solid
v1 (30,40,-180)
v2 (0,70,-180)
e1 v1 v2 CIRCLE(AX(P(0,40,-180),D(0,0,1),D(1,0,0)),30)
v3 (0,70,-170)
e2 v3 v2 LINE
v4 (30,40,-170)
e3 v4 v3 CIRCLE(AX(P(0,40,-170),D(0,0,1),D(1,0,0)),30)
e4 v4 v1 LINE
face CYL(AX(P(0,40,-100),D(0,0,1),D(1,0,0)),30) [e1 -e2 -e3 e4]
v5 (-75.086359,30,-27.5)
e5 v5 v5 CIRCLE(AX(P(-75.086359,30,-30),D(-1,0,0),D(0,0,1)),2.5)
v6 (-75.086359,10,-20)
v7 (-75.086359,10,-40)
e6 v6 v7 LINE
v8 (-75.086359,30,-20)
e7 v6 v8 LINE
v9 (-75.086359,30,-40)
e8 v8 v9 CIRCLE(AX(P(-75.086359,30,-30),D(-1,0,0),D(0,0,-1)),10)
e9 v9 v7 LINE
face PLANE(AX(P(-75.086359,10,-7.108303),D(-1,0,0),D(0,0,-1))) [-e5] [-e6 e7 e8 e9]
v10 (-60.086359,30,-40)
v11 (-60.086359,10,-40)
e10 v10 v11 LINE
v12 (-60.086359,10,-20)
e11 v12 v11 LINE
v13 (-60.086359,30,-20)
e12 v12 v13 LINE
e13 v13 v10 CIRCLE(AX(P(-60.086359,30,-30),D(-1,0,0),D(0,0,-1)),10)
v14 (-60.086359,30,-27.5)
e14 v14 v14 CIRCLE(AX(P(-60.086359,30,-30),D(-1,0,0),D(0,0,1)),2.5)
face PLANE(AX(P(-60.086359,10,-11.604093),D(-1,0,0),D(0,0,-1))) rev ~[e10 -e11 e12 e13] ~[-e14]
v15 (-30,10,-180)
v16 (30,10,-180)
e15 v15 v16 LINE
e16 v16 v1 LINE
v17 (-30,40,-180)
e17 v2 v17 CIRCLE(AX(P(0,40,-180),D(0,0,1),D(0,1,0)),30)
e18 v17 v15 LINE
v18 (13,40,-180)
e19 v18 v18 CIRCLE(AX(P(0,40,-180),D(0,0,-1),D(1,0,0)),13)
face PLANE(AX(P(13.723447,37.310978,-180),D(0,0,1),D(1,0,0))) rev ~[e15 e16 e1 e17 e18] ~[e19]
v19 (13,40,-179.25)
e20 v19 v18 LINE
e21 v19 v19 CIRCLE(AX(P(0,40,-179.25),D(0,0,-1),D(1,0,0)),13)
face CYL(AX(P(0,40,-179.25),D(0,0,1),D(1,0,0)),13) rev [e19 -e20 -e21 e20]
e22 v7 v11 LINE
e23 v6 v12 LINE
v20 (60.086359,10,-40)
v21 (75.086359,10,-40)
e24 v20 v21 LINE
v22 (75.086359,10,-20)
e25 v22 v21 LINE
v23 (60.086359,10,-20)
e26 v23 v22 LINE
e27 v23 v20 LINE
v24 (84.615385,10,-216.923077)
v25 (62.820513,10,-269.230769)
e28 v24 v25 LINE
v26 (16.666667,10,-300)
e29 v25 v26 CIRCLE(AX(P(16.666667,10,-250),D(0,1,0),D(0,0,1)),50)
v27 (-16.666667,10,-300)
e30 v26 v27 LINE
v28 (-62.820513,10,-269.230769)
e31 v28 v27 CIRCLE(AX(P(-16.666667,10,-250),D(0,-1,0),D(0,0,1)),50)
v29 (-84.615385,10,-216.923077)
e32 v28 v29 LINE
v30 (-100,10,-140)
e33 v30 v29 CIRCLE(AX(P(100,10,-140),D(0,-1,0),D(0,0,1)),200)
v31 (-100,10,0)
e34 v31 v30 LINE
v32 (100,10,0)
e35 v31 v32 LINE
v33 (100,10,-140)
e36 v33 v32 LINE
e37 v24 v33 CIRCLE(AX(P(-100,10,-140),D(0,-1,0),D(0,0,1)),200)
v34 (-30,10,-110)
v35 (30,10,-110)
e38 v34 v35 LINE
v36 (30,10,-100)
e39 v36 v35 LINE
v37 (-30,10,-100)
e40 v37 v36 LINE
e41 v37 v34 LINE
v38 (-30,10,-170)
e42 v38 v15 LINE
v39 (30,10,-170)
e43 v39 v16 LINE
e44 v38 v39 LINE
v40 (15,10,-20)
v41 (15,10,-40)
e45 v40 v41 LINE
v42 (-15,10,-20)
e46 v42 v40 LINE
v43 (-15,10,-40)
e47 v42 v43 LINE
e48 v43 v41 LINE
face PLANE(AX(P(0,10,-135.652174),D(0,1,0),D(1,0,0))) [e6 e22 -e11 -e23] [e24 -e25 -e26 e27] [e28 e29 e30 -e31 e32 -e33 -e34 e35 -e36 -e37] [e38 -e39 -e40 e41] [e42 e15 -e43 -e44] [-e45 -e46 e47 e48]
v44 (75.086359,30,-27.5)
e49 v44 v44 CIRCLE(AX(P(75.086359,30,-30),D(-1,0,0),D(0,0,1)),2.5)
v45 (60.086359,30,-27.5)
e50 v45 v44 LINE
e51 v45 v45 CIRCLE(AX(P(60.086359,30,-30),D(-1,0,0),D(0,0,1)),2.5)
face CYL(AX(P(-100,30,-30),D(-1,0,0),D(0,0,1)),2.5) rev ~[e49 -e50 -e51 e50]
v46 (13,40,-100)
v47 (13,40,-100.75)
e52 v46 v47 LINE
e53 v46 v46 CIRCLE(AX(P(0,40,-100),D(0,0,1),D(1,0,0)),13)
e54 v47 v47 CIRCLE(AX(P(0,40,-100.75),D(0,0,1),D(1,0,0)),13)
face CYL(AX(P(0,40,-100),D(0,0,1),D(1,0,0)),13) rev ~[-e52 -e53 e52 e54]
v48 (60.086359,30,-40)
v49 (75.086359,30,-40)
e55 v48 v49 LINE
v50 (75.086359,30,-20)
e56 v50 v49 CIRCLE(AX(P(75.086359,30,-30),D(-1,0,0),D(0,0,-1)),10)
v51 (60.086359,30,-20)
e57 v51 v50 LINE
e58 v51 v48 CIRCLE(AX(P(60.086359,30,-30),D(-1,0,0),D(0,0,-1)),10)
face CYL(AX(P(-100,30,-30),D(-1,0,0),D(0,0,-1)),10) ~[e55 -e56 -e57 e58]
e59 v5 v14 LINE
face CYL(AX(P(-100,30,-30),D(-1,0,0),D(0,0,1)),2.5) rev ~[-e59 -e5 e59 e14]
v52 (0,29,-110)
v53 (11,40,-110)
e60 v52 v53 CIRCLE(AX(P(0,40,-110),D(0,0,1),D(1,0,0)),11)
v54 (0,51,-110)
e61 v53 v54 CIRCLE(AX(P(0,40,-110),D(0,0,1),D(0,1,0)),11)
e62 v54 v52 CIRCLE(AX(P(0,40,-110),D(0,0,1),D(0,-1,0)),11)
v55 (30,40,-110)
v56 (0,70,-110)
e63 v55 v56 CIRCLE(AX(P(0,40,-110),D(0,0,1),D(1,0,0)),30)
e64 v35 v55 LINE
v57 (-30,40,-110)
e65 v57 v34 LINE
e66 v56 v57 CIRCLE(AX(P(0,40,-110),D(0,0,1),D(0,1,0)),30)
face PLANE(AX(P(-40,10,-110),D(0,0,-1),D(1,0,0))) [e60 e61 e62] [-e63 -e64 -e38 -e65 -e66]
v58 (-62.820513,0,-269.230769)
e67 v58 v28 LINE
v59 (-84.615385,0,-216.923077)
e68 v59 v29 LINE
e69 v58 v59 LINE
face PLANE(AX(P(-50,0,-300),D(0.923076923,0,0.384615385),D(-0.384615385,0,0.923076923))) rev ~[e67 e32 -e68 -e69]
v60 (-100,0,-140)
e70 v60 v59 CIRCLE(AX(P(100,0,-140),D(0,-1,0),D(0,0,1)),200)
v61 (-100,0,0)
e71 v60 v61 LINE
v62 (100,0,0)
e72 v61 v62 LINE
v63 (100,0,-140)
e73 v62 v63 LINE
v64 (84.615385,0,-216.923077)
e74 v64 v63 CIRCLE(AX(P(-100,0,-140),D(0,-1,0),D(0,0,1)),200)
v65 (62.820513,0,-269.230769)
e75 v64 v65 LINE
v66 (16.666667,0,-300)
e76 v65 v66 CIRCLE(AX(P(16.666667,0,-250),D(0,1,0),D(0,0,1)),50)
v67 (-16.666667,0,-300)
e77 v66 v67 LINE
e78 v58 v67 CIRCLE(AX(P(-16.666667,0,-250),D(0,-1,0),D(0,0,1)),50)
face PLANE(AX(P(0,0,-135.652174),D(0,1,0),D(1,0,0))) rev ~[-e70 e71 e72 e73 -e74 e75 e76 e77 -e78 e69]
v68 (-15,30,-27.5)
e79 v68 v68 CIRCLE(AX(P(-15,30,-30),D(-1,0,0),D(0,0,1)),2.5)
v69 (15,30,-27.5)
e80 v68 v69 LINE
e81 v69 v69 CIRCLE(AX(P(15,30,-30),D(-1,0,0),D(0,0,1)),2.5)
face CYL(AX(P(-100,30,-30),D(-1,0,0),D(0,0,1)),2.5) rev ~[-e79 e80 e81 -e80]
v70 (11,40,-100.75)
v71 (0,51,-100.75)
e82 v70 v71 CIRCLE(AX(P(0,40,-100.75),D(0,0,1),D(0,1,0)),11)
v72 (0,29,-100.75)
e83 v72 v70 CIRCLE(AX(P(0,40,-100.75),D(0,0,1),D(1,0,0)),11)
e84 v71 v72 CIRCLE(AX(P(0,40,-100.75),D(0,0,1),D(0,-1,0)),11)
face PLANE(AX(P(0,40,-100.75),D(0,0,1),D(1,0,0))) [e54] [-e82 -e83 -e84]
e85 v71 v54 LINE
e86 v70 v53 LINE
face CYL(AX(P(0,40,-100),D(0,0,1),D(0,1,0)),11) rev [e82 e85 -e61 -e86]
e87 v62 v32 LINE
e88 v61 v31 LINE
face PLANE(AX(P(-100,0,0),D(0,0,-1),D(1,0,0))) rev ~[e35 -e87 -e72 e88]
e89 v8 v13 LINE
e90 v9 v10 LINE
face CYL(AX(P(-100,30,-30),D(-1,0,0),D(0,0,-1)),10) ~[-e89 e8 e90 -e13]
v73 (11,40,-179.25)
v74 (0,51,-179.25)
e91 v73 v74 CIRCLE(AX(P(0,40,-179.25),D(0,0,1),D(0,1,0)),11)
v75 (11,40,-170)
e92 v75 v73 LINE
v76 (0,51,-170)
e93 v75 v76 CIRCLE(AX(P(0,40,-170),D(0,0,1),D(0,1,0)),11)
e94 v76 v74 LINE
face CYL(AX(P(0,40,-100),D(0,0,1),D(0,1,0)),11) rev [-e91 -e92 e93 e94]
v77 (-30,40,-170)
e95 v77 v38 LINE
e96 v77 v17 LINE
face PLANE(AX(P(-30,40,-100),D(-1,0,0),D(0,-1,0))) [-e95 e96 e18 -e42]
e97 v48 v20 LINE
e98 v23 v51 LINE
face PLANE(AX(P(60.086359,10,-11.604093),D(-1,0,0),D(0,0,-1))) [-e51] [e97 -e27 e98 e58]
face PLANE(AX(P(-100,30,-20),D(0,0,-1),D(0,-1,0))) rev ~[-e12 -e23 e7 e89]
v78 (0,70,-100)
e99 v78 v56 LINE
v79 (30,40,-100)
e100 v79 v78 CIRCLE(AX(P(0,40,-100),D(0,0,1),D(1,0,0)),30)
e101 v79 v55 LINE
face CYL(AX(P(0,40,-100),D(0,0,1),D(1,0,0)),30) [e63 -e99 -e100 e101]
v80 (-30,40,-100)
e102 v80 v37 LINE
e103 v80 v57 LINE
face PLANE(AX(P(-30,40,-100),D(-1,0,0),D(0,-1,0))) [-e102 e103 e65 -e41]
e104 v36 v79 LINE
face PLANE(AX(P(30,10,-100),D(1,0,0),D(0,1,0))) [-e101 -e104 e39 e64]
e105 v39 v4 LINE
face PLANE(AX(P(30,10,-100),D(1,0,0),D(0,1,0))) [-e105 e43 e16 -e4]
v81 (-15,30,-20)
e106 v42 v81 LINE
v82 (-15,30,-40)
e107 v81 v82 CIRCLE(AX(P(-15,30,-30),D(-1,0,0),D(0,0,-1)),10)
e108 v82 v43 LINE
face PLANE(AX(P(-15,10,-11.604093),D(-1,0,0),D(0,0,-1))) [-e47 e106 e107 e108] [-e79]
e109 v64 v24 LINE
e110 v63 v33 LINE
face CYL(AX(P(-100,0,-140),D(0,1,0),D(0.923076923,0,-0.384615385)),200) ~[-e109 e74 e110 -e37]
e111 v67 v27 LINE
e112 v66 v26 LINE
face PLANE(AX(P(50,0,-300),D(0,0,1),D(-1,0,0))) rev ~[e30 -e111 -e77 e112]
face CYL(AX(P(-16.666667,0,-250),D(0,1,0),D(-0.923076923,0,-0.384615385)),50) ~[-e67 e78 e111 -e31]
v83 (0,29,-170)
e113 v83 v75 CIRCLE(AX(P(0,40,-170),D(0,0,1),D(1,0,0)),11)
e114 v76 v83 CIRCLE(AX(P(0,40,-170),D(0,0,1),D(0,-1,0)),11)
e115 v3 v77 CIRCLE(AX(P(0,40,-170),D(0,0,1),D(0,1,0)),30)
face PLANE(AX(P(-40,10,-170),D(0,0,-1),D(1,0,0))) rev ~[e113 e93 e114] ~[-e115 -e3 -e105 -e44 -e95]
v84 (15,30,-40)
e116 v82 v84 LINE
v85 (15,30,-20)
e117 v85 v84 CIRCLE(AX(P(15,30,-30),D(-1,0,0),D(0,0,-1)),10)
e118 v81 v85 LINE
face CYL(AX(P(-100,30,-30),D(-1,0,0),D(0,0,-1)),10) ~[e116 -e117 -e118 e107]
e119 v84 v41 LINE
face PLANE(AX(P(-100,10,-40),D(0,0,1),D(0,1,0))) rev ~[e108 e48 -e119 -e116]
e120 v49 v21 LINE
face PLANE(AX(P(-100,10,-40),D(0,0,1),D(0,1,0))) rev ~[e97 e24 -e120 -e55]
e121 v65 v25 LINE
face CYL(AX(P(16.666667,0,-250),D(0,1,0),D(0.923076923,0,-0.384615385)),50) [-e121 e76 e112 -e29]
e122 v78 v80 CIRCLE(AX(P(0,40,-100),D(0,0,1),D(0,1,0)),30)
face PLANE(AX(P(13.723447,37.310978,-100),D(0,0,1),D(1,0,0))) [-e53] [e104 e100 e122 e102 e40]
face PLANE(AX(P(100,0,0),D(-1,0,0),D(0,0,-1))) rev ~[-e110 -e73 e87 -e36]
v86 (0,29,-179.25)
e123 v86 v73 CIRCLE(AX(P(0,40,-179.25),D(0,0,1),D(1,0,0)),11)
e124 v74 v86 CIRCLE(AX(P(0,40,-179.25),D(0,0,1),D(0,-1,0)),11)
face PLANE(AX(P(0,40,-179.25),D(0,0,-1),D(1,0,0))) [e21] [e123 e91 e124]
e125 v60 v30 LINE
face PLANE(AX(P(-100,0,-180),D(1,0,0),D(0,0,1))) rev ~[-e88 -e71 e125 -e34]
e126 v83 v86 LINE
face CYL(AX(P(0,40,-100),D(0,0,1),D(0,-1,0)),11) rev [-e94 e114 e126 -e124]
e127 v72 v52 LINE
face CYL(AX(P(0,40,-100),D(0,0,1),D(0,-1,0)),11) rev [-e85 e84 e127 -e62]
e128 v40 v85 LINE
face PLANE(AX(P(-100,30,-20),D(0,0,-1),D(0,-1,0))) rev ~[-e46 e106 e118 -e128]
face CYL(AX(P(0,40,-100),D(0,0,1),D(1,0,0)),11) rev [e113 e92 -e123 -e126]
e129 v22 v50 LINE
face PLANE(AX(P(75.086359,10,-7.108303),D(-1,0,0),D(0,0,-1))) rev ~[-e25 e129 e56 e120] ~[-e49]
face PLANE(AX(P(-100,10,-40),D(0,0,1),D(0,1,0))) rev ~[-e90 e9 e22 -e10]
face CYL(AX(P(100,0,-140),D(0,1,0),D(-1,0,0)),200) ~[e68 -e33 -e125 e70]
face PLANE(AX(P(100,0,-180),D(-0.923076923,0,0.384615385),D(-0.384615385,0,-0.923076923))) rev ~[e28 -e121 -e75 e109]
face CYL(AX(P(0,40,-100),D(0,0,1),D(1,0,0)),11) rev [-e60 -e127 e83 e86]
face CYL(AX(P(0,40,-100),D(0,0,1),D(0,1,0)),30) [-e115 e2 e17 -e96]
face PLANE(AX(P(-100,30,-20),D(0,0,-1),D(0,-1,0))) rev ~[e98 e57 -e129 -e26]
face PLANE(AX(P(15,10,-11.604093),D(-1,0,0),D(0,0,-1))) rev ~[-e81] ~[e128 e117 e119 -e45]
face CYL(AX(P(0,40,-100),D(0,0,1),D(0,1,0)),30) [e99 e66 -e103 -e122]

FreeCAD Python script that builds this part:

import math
import FreeCAD as App
import Part
import Sketcher

V = App.Vector


def edges_at(feature, points):
    """Names of the edges that pass closest to the given points."""
    edges = feature.Shape.Edges
    near = lambda p: min(range(len(edges)), key=lambda i: edges[i].distToShape(Part.Vertex(*p))[0])
    return sorted({f"Edge{near(p) + 1}" for p in points})


def add_polygon(sketch, points):
    """Adds a closed chain of lines whose ends are joined by coincident constraints."""
    first, n = sketch.GeometryCount, len(points)
    for a, b in zip(points, points[1:] + points[:1]):
        sketch.addGeometry(Part.LineSegment(App.Vector(*a, 0), App.Vector(*b, 0)), False)
    for i in range(n):
        sketch.addConstraint(Sketcher.Constraint("Coincident", first + i, 2, first + (i + 1) % n, 1))

doc = App.newDocument("Part")
params = doc.addObject("Spreadsheet::Sheet", "Params")
for row, (alias, value) in enumerate([
    ("sketch1_width", "200 mm"),
    ("sketch1_width2", "100 mm"),
    ("sketch1_height", "180 mm"),
    ("sketch1_length", "130 mm"),
    ("pad1_length", "10 mm"),
    ("sketch2_radius", "30 mm"),
    ("sketch2_radius2", "11 mm"),
    ("sketch2_height", "30 mm"),
    ("pad2_length", "80 mm"),
    ("sketch3_width", "80 mm"),
    ("sketch3_height", "60 mm"),
    ("pocket1_length", "110 mm"),
    ("fillet_radius", "50 mm"),
    ("fillet2_radius", "200 mm"),
    ("sketch4_diameter", "26 mm"),
    ("pocket2_length", "0.75 mm"),
    ("sketch5_diameter", "26 mm"),
    ("pocket3_length", "0.75 mm"),
    ("sketch6_diameter", "5 mm"),
    ("sketch6_radius", "10 mm"),
    ("pad3_length", "200 mm"),
], start=1):
    params.set(f"A{row}", alias)
    params.set(f"B{row}", "=" + value)
    params.setAlias(f"B{row}", alias)

body = doc.addObject("PartDesign::Body", "Body")

sketch1 = body.newObject("Sketcher::SketchObject", "Sketch")
sketch1.AttachmentSupport = (doc.getObject("XZ_Plane"), [""])
sketch1.MapMode = "FlatFace"
add_polygon(sketch1, [(-100, 0), (100, 0), (100, -180), (50, -300), (-50, -300), (-100, -180)])
sketch1.addConstraint([
    Sketcher.Constraint("Horizontal", 0),
    Sketcher.Constraint("Vertical", 1),
    Sketcher.Constraint("Horizontal", 3),
    Sketcher.Constraint("Vertical", 5),
    Sketcher.Constraint("Symmetric", 0, 2, 5, 2, -1, 1),
    Sketcher.Constraint("Horizontal", 1, 2, 4, 2),
    Sketcher.Constraint("Equal", 2, 4),
    Sketcher.Constraint("DistanceX", 0, 1, 0, 2, 200.0),
    Sketcher.Constraint("DistanceX", 3, 2, 3, 1, 100.0),
    Sketcher.Constraint("DistanceY", 1, 2, 1, 1, 180.0),
    Sketcher.Constraint("Distance", 2, 130.0),
])
sketch1.setExpression("Constraints[13]", "Params.sketch1_width")
sketch1.setExpression("Constraints[14]", "Params.sketch1_width2")
sketch1.setExpression("Constraints[15]", "Params.sketch1_height")
sketch1.setExpression("Constraints[16]", "Params.sketch1_length")
pad1 = body.newObject("PartDesign::Pad", "Pad")
pad1.Profile = sketch1
pad1.setExpression("Length", "Params.pad1_length")
pad1.Reversed = True

sketch2 = body.newObject("Sketcher::SketchObject", "Sketch001")
sketch2.AttachmentSupport = (doc.getObject("XY_Plane"), [""])
sketch2.MapMode = "FlatFace"
sketch2.AttachmentOffset = App.Placement(V(0, 0, -100), App.Rotation())
sketch2.addGeometry([
    Part.LineSegment(V(30, 10, 0), V(30, 40, 0)),
    Part.ArcOfCircle(Part.Circle(V(0, 40, 0), V(0, 0, 1), 30), math.radians(0), math.radians(90)),
    Part.ArcOfCircle(Part.Circle(V(0, 40, 0), V(0, 0, 1), 30), math.radians(90), math.radians(180)),
    Part.LineSegment(V(-30, 40, 0), V(-30, 10, 0)),
    Part.LineSegment(V(-30, 10, 0), V(30, 10, 0)),
    Part.ArcOfCircle(Part.Circle(V(0, 40, 0), V(0, 0, 1), 11), math.radians(0), math.radians(90)),
    Part.ArcOfCircle(Part.Circle(V(0, 40, 0), V(0, 0, 1), 11), math.radians(-90), math.radians(0)),
    Part.ArcOfCircle(Part.Circle(V(0, 40, 0), V(0, 0, 1), 11), math.radians(90), math.radians(270)),
], False)
sketch2.addConstraint([
    Sketcher.Constraint("Tangent", 0, 2, 1, 1),
    Sketcher.Constraint("Tangent", 1, 2, 2, 1),
    Sketcher.Constraint("Tangent", 2, 2, 3, 1),
    Sketcher.Constraint("Coincident", 3, 2, 4, 1),
    Sketcher.Constraint("Coincident", 4, 2, 0, 1),
    Sketcher.Constraint("Tangent", 5, 1, 6, 2),
    Sketcher.Constraint("Tangent", 6, 1, 7, 2),
    Sketcher.Constraint("Tangent", 7, 1, 5, 2),
    Sketcher.Constraint("Vertical", 0),
    Sketcher.Constraint("Vertical", 3),
    Sketcher.Constraint("Horizontal", 4),
    Sketcher.Constraint("Coincident", 5, 3, 1, 3),
    Sketcher.Constraint("Equal", 1, 2),
    Sketcher.Constraint("PointOnObject", 1, 3, -2),
    Sketcher.Constraint("PointOnObject", 1, 2, -2),
    Sketcher.Constraint("PointOnObject", 6, 1, -2),
    Sketcher.Constraint("PointOnObject", 7, 1, -2),
    Sketcher.Constraint("Horizontal", 2, 2, 5, 1),
    Sketcher.Constraint("Radius", 1, 30.0),
    Sketcher.Constraint("Radius", 5, 11.0),
    Sketcher.Constraint("DistanceY", 0, 1, 0, 2, 30.0),
    Sketcher.Constraint("DistanceY", -1, 1, 1, 3, 40.0),
])
sketch2.setExpression("Constraints[18]", "Params.sketch2_radius")
sketch2.setExpression("Constraints[19]", "Params.sketch2_radius2")
sketch2.setExpression("Constraints[20]", "Params.sketch2_height")
pad2 = body.newObject("PartDesign::Pad", "Pad001")
pad2.Profile = sketch2
pad2.setExpression("Length", "Params.pad2_length")
pad2.Reversed = True

sketch3 = body.newObject("Sketcher::SketchObject", "Sketch002")
sketch3.AttachmentSupport = (doc.getObject("XZ_Plane"), [""])
sketch3.MapMode = "FlatFace"
sketch3.AttachmentOffset = App.Placement(V(0, 0, -10), App.Rotation())
add_polygon(sketch3, [(-40, -170), (-40, -110), (40, -110), (40, -170)])
sketch3.addConstraint([
    Sketcher.Constraint("Vertical", 0),
    Sketcher.Constraint("Horizontal", 1),
    Sketcher.Constraint("Vertical", 2),
    Sketcher.Constraint("Horizontal", 3),
    Sketcher.Constraint("DistanceX", 1, 1, 1, 2, 80.0),
    Sketcher.Constraint("DistanceY", 0, 1, 0, 2, 60.0),
    Sketcher.Constraint("DistanceX", 0, 2, -1, 1, 40.0),
    Sketcher.Constraint("DistanceY", 0, 2, -1, 1, 110.0),
])
sketch3.setExpression("Constraints[8]", "Params.sketch3_width")
sketch3.setExpression("Constraints[9]", "Params.sketch3_height")
pocket1 = body.newObject("PartDesign::Pocket", "Pocket")
pocket1.Profile = sketch3
pocket1.setExpression("Length", "Params.pocket1_length")
doc.recompute()

fillet = body.newObject("PartDesign::Fillet", "Fillet")
fillet.Base = (pocket1, edges_at(pocket1, [(-50, 5, -300), (50, 5, -300)]))
fillet.setExpression("Radius", "Params.fillet_radius")
doc.recompute()

fillet2 = body.newObject("PartDesign::Fillet", "Fillet001")
fillet2.Base = (fillet, edges_at(fillet, [(-100, 5, -180), (100, 5, -180)]))
fillet2.setExpression("Radius", "Params.fillet2_radius")

sketch4 = body.newObject("Sketcher::SketchObject", "Sketch003")
sketch4.AttachmentSupport = (doc.getObject("XY_Plane"), [""])
sketch4.MapMode = "FlatFace"
sketch4.AttachmentOffset = App.Placement(V(0, 0, -100), App.Rotation())
sketch4.addGeometry(Part.Circle(V(0, 40, 0), V(0, 0, 1), 13), False)
sketch4.addConstraint([
    Sketcher.Constraint("PointOnObject", 0, 3, -2),
    Sketcher.Constraint("Diameter", 0, 26.0),
    Sketcher.Constraint("DistanceY", -1, 1, 0, 3, 40.0),
])
sketch4.setExpression("Constraints[1]", "Params.sketch4_diameter")
pocket2 = body.newObject("PartDesign::Pocket", "Pocket001")
pocket2.Profile = sketch4
pocket2.setExpression("Length", "Params.pocket2_length")

sketch5 = body.newObject("Sketcher::SketchObject", "Sketch004")
sketch5.AttachmentSupport = (doc.getObject("XY_Plane"), [""])
sketch5.MapMode = "FlatFace"
sketch5.AttachmentOffset = App.Placement(V(0, 0, -179.25), App.Rotation())
sketch5.addGeometry(Part.Circle(V(0, 40, 0), V(0, 0, 1), 13), False)
sketch5.addConstraint([
    Sketcher.Constraint("PointOnObject", 0, 3, -2),
    Sketcher.Constraint("Diameter", 0, 26.0),
    Sketcher.Constraint("DistanceY", -1, 1, 0, 3, 40.0),
])
sketch5.setExpression("Constraints[1]", "Params.sketch5_diameter")
pocket3 = body.newObject("PartDesign::Pocket", "Pocket002")
pocket3.Profile = sketch5
pocket3.setExpression("Length", "Params.pocket3_length")

sketch6 = body.newObject("Sketcher::SketchObject", "Sketch005")
sketch6.AttachmentSupport = (doc.getObject("YZ_Plane"), [""])
sketch6.MapMode = "FlatFace"
sketch6.AttachmentOffset = App.Placement(V(0, 0, -100), App.Rotation())
sketch6.addGeometry([
    Part.LineSegment(V(30, -40, 0), V(10, -40, 0)),
    Part.LineSegment(V(10, -40, 0), V(10, -20, 0)),
    Part.LineSegment(V(10, -20, 0), V(30, -20, 0)),
    Part.ArcOfCircle(Part.Circle(V(30, -30, 0), V(0, 0, 1), 10), math.radians(-90), math.radians(90)),
    Part.Circle(V(30, -30, 0), V(0, 0, 1), 2.5),
], False)
sketch6.addConstraint([
    Sketcher.Constraint("Coincident", 0, 2, 1, 1),
    Sketcher.Constraint("Coincident", 1, 2, 2, 1),
    Sketcher.Constraint("Tangent", 2, 2, 3, 2),
    Sketcher.Constraint("Tangent", 3, 1, 0, 1),
    Sketcher.Constraint("Horizontal", 0),
    Sketcher.Constraint("Vertical", 1),
    Sketcher.Constraint("Horizontal", 2),
    Sketcher.Constraint("Coincident", 4, 3, 3, 3),
    Sketcher.Constraint("Equal", 2, 1),
    Sketcher.Constraint("Diameter", 4, 5.0),
    Sketcher.Constraint("Radius", 3, 10.0),
    Sketcher.Constraint("DistanceX", -1, 1, 3, 3, 30.0),
    Sketcher.Constraint("DistanceY", 3, 3, -1, 1, 30.0),
])
sketch6.setExpression("Constraints[9]", "Params.sketch6_diameter")
sketch6.setExpression("Constraints[10]", "Params.sketch6_radius")
pad3 = body.newObject("PartDesign::Pad", "Pad002")
pad3.Profile = sketch6
pad3.setExpression("Length", "Params.pad3_length")

sketch7 = body.newObject("Sketcher::SketchObject", "Sketch006")
sketch7.AttachmentSupport = (doc.getObject("XZ_Plane"), [""])
sketch7.MapMode = "FlatFace"
sketch7.AttachmentOffset = App.Placement(V(0, 0, -10), App.Rotation())
add_polygon(sketch7, [(-60, -49), (-60, -12), (-15, -12), (-15, -49)])
add_polygon(sketch7, [(75, -52), (75, -7), (108, -7), (108, -52)])
add_polygon(sketch7, [(15, -49), (15, -12), (60, -12), (60, -49)])
add_polygon(sketch7, [(-108, -52), (-108, -7), (-75, -7), (-75, -52)])
sketch7.addConstraint([
    Sketcher.Constraint("Vertical", 0),
    Sketcher.Constraint("Horizontal", 1),
    Sketcher.Constraint("Vertical", 2),
    Sketcher.Constraint("Horizontal", 3),
    Sketcher.Constraint("Vertical", 4),
    Sketcher.Constraint("Horizontal", 5),
    Sketcher.Constraint("Vertical", 6),
    Sketcher.Constraint("Horizontal", 7),
    Sketcher.Constraint("Vertical", 8),
    Sketcher.Constraint("Horizontal", 9),
    Sketcher.Constraint("Vertical", 10),
    Sketcher.Constraint("Horizontal", 11),
    Sketcher.Constraint("Vertical", 12),
    Sketcher.Constraint("Horizontal", 13),
    Sketcher.Constraint("Vertical", 14),
    Sketcher.Constraint("Horizontal", 15),
    Sketcher.Constraint("Symmetric", 1, 2, 8, 2, -2),
    Sketcher.Constraint("Symmetric", 3, 2, 10, 2, -2),
    Sketcher.Constraint("Symmetric", 5, 2, 12, 2, -2),
    Sketcher.Constraint("Symmetric", 7, 2, 14, 2, -2),
    Sketcher.Constraint("DistanceX", 1, 2, -1, 1, 15.0),
    Sketcher.Constraint("DistanceX", 9, 2, 4, 2, 15.0),
    Sketcher.Constraint("DistanceX", 1, 1, 1, 2, 45.086359),
    Sketcher.Constraint("DistanceY", 0, 1, 0, 2, 37.636191),
    Sketcher.Constraint("DistanceX", 5, 1, 5, 2, 32.755047),
    Sketcher.Constraint("DistanceY", 4, 1, 4, 2, 44.701005),
    Sketcher.Constraint("DistanceY", 1, 2, 4, 2, 4.495791),
    Sketcher.Constraint("DistanceY", 0, 2, -1, 1, 11.604093),
])
pocket4 = body.newObject("PartDesign::Pocket", "Pocket003")
pocket4.Profile = sketch7
pocket4.Type = "ThroughAll"

doc.recompute()
